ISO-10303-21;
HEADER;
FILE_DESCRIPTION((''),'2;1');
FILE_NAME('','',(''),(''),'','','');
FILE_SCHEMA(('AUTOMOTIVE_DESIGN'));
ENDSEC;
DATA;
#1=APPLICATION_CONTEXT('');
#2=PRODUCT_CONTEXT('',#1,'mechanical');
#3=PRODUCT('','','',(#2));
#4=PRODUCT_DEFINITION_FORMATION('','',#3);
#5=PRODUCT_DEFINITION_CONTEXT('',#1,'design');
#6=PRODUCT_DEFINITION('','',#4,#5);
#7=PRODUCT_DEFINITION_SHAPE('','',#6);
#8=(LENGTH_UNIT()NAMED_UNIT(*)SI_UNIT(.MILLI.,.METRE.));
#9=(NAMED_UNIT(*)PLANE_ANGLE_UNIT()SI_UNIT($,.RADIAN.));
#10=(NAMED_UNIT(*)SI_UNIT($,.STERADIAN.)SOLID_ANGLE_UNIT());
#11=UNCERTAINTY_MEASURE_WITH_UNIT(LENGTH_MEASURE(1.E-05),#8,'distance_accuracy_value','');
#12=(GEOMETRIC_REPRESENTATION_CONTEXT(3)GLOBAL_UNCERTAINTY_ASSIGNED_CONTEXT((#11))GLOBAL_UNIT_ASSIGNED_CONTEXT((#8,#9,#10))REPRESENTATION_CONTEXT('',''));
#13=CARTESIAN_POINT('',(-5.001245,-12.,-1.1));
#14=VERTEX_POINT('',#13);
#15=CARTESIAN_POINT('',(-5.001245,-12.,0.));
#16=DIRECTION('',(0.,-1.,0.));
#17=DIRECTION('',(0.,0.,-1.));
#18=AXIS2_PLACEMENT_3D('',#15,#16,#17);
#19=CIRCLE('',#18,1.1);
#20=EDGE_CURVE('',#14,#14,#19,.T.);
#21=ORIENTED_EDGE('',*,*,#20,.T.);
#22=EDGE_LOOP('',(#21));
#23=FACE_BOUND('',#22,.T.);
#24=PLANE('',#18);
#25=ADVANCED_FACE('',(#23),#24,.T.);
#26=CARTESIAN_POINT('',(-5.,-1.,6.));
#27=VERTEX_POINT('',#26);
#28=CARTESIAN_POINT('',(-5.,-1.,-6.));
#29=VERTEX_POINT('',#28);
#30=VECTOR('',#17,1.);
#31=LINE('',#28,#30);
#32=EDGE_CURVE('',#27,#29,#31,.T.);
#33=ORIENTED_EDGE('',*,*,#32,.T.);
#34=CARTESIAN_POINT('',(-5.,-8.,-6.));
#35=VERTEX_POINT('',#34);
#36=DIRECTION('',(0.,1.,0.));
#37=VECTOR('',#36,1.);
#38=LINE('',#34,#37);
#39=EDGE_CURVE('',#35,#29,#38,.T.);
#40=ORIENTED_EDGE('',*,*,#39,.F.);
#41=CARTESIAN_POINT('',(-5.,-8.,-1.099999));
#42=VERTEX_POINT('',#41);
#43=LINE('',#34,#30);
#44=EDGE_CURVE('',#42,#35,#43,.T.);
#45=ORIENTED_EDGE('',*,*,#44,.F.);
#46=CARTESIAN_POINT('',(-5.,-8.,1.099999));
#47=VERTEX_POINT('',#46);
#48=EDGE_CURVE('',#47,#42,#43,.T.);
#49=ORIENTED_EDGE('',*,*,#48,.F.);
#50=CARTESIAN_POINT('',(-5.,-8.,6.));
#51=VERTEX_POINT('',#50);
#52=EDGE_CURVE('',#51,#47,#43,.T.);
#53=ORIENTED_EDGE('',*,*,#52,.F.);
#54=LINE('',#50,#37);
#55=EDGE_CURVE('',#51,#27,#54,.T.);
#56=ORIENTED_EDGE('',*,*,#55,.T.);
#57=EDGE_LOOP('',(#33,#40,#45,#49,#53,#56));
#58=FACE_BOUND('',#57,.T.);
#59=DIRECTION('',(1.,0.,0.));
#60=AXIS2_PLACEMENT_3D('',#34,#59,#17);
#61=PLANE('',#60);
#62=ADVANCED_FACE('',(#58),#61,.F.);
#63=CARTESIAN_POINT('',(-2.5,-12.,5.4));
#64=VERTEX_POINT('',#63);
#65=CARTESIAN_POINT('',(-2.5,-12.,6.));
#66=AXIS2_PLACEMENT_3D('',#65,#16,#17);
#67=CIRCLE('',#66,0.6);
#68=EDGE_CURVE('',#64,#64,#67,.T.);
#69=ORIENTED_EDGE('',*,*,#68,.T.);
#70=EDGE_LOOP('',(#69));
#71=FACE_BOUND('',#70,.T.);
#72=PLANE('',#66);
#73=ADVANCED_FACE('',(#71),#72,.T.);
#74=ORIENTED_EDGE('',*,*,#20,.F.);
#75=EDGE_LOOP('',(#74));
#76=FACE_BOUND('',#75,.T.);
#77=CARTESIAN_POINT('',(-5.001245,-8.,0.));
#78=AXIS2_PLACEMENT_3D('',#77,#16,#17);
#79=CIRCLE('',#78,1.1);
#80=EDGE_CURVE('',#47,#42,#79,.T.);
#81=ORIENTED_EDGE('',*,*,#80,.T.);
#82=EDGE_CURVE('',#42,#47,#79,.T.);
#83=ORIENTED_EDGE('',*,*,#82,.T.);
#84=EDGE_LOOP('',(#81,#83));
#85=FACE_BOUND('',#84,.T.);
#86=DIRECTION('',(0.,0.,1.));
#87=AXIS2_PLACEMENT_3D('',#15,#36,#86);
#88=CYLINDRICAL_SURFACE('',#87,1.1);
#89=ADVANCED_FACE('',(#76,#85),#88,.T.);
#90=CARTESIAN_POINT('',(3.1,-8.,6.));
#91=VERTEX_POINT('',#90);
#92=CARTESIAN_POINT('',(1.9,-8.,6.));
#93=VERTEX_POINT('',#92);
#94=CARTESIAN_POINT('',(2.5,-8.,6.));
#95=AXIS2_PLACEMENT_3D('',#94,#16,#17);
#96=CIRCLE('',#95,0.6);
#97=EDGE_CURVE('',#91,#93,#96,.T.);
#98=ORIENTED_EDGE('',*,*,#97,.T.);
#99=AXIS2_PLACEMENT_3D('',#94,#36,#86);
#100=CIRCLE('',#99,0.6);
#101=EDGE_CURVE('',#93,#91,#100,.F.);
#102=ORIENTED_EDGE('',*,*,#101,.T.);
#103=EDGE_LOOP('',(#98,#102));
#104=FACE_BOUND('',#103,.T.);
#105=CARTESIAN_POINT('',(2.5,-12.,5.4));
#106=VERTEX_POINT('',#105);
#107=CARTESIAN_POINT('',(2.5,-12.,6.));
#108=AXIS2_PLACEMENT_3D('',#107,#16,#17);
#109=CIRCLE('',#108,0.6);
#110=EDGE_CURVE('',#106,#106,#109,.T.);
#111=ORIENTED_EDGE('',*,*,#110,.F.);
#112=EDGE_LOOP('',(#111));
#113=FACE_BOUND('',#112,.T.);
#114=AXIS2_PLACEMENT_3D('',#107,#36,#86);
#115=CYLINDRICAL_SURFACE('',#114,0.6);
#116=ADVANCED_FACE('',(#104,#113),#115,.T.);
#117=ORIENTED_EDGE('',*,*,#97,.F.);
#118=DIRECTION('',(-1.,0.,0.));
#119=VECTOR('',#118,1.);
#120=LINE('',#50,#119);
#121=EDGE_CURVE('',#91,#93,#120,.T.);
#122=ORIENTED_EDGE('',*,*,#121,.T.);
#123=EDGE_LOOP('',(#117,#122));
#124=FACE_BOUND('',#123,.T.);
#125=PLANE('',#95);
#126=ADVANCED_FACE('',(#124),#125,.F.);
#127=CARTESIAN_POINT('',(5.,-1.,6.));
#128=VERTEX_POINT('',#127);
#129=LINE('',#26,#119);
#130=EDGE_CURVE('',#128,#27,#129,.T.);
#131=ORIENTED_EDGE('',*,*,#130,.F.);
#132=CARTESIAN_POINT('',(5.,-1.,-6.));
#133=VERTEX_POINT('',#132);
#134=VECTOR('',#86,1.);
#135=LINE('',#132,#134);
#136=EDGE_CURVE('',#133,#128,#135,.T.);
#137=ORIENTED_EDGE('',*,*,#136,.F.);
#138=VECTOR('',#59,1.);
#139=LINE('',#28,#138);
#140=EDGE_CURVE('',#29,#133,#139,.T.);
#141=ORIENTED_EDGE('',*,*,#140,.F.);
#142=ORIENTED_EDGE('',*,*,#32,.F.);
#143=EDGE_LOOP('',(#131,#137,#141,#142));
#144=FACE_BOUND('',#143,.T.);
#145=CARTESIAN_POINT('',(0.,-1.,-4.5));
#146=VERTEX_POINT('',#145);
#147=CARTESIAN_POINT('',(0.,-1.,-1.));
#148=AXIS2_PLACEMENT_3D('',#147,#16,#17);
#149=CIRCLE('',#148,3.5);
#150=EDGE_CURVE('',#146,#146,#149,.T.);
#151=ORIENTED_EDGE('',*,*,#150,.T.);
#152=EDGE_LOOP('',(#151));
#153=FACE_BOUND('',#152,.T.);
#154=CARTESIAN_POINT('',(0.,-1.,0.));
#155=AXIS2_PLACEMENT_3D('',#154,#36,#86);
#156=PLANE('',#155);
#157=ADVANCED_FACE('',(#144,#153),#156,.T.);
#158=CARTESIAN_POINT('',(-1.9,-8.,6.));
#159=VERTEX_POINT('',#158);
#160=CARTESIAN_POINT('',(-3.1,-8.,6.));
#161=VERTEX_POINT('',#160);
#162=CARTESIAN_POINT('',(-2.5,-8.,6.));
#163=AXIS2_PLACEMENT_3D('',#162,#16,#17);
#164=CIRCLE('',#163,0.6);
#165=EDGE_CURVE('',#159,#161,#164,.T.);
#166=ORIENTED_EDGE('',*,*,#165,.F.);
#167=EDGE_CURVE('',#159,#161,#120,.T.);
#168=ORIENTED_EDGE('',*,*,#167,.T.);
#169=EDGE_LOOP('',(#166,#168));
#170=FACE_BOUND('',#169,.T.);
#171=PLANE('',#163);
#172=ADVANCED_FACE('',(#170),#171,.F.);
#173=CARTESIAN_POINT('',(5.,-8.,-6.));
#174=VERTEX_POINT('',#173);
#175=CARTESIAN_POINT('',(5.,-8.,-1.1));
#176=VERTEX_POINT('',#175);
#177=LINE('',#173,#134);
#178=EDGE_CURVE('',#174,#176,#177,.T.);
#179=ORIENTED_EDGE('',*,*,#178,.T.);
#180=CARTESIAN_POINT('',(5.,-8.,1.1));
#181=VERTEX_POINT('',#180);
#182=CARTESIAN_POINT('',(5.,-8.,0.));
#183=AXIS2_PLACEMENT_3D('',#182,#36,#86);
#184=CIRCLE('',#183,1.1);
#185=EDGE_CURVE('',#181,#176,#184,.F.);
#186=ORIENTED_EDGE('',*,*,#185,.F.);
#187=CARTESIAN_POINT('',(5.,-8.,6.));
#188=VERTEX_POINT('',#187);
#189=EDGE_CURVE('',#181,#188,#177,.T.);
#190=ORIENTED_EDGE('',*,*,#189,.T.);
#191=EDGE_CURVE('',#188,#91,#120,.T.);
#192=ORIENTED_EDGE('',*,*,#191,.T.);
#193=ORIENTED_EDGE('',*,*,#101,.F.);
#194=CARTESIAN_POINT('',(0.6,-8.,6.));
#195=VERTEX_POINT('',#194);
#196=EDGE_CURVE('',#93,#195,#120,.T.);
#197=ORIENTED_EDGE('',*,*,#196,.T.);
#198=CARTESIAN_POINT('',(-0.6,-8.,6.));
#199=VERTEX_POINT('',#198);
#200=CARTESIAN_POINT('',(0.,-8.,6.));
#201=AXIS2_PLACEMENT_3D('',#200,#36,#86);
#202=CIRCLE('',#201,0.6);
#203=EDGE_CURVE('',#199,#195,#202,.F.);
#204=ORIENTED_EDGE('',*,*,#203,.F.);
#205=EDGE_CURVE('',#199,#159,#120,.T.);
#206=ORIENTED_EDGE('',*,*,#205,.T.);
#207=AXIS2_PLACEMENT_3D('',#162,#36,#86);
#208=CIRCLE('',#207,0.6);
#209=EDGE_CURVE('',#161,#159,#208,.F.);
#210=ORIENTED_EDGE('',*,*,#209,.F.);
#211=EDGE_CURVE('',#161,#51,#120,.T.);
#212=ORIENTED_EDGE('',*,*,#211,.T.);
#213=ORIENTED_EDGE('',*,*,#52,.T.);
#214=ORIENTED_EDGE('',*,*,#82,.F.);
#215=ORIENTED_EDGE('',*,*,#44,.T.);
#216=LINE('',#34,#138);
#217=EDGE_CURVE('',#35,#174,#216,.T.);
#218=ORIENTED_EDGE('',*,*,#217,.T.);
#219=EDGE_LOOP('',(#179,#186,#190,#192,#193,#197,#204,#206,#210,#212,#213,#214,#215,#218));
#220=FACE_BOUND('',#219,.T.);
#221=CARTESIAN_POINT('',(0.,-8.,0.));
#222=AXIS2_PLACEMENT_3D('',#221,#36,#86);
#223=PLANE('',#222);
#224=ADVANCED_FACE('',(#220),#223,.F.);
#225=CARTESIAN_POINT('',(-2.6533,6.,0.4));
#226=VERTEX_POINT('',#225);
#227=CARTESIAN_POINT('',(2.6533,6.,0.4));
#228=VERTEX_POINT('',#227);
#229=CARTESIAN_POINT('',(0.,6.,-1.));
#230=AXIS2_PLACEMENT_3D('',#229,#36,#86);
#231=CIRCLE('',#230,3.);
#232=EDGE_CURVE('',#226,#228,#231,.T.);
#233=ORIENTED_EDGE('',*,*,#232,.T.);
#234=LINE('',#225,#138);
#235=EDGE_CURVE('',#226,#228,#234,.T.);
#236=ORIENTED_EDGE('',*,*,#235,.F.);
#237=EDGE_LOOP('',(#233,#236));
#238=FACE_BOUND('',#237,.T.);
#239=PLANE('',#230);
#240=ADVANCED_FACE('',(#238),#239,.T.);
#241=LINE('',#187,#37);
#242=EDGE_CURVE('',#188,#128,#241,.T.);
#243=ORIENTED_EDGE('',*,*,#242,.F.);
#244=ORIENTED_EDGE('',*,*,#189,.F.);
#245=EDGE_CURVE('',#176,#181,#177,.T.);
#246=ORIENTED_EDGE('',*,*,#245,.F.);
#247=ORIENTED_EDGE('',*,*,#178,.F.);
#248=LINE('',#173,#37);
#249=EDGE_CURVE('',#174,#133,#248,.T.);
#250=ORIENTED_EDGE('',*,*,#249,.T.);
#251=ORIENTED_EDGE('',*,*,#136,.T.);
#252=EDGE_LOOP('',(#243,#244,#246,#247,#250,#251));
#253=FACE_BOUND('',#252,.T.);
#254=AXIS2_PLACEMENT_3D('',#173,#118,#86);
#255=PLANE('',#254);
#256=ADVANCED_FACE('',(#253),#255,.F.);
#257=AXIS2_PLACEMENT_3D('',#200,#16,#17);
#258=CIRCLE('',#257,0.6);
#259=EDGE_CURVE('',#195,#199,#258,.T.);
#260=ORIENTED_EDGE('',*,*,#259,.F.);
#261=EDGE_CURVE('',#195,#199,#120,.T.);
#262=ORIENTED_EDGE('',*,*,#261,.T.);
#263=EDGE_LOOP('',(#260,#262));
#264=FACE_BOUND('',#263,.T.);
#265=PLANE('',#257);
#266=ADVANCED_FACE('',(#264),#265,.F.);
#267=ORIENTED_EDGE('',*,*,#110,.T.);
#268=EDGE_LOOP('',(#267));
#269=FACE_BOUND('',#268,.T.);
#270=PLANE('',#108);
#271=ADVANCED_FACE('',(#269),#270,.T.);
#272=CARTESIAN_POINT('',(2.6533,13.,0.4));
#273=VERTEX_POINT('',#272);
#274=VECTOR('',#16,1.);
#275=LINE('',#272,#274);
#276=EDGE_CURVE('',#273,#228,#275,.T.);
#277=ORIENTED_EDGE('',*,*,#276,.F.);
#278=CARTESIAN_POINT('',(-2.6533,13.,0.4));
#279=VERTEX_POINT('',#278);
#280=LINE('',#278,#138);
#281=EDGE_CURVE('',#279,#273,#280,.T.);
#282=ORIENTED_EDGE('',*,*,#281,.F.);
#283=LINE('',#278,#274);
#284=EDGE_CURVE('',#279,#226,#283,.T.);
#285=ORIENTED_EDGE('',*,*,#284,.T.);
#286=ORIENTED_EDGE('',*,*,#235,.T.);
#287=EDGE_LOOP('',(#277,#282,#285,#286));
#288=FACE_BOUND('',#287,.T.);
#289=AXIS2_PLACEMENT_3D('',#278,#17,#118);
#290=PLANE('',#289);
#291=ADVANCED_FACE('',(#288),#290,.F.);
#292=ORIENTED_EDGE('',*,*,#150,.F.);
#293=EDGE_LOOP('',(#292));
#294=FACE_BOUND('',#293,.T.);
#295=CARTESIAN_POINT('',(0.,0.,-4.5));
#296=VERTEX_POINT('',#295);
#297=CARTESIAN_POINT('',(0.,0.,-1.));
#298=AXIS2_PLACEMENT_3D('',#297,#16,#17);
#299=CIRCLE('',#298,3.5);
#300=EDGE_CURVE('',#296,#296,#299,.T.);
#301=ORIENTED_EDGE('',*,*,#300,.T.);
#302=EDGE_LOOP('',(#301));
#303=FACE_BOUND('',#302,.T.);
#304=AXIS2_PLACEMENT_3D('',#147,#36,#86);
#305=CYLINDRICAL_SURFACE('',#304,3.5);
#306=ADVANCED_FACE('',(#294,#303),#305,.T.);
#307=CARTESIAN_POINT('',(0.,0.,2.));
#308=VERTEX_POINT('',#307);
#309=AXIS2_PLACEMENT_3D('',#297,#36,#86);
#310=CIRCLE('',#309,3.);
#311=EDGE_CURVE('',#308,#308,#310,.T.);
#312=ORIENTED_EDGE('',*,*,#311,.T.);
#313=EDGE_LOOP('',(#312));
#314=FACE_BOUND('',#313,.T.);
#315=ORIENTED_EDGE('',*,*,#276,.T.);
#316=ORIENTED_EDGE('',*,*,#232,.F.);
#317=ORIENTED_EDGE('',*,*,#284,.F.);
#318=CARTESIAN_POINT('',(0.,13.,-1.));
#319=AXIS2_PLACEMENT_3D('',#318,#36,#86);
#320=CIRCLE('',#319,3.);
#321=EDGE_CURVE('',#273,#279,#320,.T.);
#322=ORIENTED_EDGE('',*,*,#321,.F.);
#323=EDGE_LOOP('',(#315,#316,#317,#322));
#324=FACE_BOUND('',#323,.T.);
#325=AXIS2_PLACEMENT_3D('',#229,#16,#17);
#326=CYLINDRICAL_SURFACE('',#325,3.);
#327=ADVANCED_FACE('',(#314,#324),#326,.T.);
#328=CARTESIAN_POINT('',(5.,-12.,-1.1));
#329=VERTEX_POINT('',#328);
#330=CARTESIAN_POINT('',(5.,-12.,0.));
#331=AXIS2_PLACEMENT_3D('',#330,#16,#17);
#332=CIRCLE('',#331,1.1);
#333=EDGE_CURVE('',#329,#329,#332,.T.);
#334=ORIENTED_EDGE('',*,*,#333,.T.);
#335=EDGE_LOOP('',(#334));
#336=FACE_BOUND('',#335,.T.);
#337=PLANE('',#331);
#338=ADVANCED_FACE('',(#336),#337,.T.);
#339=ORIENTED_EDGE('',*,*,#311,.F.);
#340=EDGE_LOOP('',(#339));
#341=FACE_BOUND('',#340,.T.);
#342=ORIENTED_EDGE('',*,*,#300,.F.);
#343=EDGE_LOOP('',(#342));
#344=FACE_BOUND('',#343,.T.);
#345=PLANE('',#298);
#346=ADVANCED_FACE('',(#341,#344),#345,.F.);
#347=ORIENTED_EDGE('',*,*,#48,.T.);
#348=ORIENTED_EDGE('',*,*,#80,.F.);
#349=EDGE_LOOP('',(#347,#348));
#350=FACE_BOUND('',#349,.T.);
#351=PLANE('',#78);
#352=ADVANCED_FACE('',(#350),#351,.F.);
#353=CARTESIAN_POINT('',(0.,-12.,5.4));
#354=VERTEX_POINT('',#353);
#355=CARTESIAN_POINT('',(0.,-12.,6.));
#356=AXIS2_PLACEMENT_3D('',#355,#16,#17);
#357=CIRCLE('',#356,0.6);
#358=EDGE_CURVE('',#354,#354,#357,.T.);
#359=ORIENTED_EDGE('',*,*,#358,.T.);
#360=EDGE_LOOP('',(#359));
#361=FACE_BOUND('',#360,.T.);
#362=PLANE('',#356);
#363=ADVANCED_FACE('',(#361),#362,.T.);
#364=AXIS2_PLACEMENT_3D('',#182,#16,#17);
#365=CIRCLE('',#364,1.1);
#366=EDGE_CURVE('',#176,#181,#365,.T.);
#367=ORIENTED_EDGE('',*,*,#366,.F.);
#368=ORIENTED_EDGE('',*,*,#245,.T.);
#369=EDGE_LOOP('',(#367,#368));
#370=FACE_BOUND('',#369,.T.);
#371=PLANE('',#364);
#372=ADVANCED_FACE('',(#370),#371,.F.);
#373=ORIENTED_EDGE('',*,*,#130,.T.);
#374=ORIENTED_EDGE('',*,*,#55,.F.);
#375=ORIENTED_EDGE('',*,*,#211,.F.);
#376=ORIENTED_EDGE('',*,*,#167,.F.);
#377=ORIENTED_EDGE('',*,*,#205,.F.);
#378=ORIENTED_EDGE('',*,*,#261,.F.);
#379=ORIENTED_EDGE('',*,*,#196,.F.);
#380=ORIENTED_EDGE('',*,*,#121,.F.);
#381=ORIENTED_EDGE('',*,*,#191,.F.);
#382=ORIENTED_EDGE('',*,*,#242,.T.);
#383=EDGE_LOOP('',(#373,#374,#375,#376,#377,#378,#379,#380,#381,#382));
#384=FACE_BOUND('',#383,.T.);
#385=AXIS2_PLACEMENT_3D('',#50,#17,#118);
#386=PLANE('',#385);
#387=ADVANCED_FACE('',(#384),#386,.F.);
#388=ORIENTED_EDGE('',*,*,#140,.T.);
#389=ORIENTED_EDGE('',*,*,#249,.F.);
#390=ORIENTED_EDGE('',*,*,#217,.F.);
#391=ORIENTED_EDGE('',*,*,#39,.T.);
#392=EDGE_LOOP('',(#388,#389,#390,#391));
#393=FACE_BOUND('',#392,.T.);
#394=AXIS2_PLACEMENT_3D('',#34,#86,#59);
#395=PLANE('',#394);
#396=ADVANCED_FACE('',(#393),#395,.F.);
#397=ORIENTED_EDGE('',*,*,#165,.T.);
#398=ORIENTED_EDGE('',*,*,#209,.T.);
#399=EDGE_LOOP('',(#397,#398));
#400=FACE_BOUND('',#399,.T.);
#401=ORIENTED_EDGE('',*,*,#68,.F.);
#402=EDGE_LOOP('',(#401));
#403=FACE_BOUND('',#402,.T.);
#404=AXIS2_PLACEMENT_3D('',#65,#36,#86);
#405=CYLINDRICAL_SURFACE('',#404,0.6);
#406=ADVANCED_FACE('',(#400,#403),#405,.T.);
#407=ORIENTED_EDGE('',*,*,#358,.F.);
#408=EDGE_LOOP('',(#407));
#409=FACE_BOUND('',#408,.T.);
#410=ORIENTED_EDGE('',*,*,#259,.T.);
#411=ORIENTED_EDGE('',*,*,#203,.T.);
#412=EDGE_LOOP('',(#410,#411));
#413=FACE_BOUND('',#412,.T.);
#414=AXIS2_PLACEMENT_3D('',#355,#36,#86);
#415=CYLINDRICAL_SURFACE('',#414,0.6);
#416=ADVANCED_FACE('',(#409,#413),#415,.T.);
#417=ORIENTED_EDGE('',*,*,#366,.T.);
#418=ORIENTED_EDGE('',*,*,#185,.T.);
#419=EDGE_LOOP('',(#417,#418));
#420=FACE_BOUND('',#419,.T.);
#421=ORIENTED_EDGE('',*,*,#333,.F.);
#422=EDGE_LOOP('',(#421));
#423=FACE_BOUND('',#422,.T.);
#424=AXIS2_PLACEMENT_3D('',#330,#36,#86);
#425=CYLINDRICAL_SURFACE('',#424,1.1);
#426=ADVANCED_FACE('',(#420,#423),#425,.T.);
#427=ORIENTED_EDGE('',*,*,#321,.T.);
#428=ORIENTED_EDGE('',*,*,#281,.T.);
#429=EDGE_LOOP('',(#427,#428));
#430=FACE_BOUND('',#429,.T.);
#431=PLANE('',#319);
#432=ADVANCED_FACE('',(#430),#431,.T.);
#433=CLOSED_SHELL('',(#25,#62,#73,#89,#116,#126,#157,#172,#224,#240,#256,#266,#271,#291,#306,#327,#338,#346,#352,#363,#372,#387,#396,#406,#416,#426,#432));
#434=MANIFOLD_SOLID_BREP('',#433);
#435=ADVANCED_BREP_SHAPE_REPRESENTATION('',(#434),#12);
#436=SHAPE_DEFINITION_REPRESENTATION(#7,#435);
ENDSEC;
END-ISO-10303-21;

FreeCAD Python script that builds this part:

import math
import FreeCAD as App
import Part
import Sketcher

doc = App.newDocument("Part")
body = doc.addObject("PartDesign::Body", "Body")

sketch1 = body.newObject("Sketcher::SketchObject", "Sketch")
sketch1.AttachmentSupport = (doc.getObject("XZ_Plane"), [""])
sketch1.MapMode = "FlatFace"
sketch1.addGeometry(Part.Circle(App.Vector(0, -1, 0), App.Vector(0, 0, 1), 3), False)
sketch1.addConstraint(Sketcher.Constraint("PointOnObject", 0, 3, -2))
sketch1.addConstraint(Sketcher.Constraint("Diameter", 0, 6.0))
sketch1.addConstraint(Sketcher.Constraint("DistanceY", 0, 3, -1, 1, 1.0))
pad1 = body.newObject("PartDesign::Pad", "Pad")
pad1.Profile = sketch1
pad1.Length = 6
pad1.Reversed = True

sketch2 = body.newObject("Sketcher::SketchObject", "Sketch001")
sketch2.AttachmentSupport = (doc.getObject("XZ_Plane"), [""])
sketch2.MapMode = "FlatFace"
sketch2.AttachmentOffset = App.Placement(App.Vector(0, 0, -6), App.Rotation())
sketch2.addGeometry(Part.LineSegment(App.Vector(-2.7, 0.4, 0), App.Vector(2.7, 0.4, 0)), False)
sketch2.addGeometry(Part.ArcOfCircle(Part.Circle(App.Vector(0, -1, 0), App.Vector(0, 0, 1), 3), math.radians(152), math.radians(388)), False)
sketch2.addConstraint(Sketcher.Constraint("Coincident", 0, 1, 1, 1))
sketch2.addConstraint(Sketcher.Constraint("Coincident", 1, 2, 0, 2))
sketch2.addConstraint(Sketcher.Constraint("Horizontal", 0))
sketch2.addConstraint(Sketcher.Constraint("PointOnObject", 1, 3, -2))
sketch2.addConstraint(Sketcher.Constraint("Radius", 1, 3.0))
sketch2.addConstraint(Sketcher.Constraint("DistanceY", 1, 3, -1, 1, 1.0))
sketch2.addConstraint(Sketcher.Constraint("DistanceY", -1, 1, 0, 1, 0.4))
pad2 = body.newObject("PartDesign::Pad", "Pad001")
pad2.Profile = sketch2
pad2.Length = 7
pad2.Reversed = True

sketch3 = body.newObject("Sketcher::SketchObject", "Sketch002")
sketch3.AttachmentSupport = (doc.getObject("XZ_Plane"), [""])
sketch3.MapMode = "FlatFace"
sketch3.addGeometry(Part.Circle(App.Vector(0, -1, 0), App.Vector(0, 0, 1), 3.5), False)
sketch3.addConstraint(Sketcher.Constraint("PointOnObject", 0, 3, -2))
sketch3.addConstraint(Sketcher.Constraint("Diameter", 0, 7.0))
sketch3.addConstraint(Sketcher.Constraint("DistanceY", 0, 3, -1, 1, 1.0))
pad3 = body.newObject("PartDesign::Pad", "Pad002")
pad3.Profile = sketch3
pad3.Length = 1

sketch4 = body.newObject("Sketcher::SketchObject", "Sketch003")
sketch4.AttachmentSupport = (doc.getObject("XZ_Plane"), [""])
sketch4.MapMode = "FlatFace"
sketch4.AttachmentOffset = App.Placement(App.Vector(0, 0, 1), App.Rotation())
sketch4.addGeometry(Part.LineSegment(App.Vector(-5, 6, 0), App.Vector(-5, -6, 0)), False)
sketch4.addGeometry(Part.LineSegment(App.Vector(-5, -6, 0), App.Vector(5, -6, 0)), False)
sketch4.addGeometry(Part.LineSegment(App.Vector(5, -6, 0), App.Vector(5, 6, 0)), False)
sketch4.addGeometry(Part.LineSegment(App.Vector(5, 6, 0), App.Vector(-5, 6, 0)), False)
sketch4.addConstraint(Sketcher.Constraint("Coincident", 0, 2, 1, 1))
sketch4.addConstraint(Sketcher.Constraint("Coincident", 1, 2, 2, 1))
sketch4.addConstraint(Sketcher.Constraint("Coincident", 2, 2, 3, 1))
sketch4.addConstraint(Sketcher.Constraint("Coincident", 3, 2, 0, 1))
sketch4.addConstraint(Sketcher.Constraint("Vertical", 0))
sketch4.addConstraint(Sketcher.Constraint("Horizontal", 1))
sketch4.addConstraint(Sketcher.Constraint("Vertical", 2))
sketch4.addConstraint(Sketcher.Constraint("Horizontal", 3))
sketch4.addConstraint(Sketcher.Constraint("Symmetric", 0, 2, 2, 2, -1, 1))
sketch4.addConstraint(Sketcher.Constraint("DistanceX", 1, 1, 1, 2, 10.0))
sketch4.addConstraint(Sketcher.Constraint("DistanceY", 0, 2, 0, 1, 12.0))
pad4 = body.newObject("PartDesign::Pad", "Pad003")
pad4.Profile = sketch4
pad4.Length = 7

sketch5 = body.newObject("Sketcher::SketchObject", "Sketch004")
sketch5.AttachmentSupport = (doc.getObject("XZ_Plane"), [""])
sketch5.MapMode = "FlatFace"
sketch5.AttachmentOffset = App.Placement(App.Vector(0, 0, 8), App.Rotation())
sketch5.addGeometry(Part.Circle(App.Vector(-5, 0, 0), App.Vector(0, 0, 1), 1.1), False)
sketch5.addGeometry(Part.Circle(App.Vector(5, 0, 0), App.Vector(0, 0, 1), 1.1), False)
sketch5.addConstraint(Sketcher.Constraint("Equal", 0, 1))
sketch5.addConstraint(Sketcher.Constraint("PointOnObject", 0, 3, -1))
sketch5.addConstraint(Sketcher.Constraint("PointOnObject", 1, 3, -1))
sketch5.addConstraint(Sketcher.Constraint("Diameter", 0, 2.2))
sketch5.addConstraint(Sketcher.Constraint("DistanceX", -1, 1, 1, 3, 5.0))
sketch5.addConstraint(Sketcher.Constraint("DistanceX", 0, 3, -1, 1, 5.001245))
pad5 = body.newObject("PartDesign::Pad", "Pad004")
pad5.Profile = sketch5
pad5.Length = 4

sketch6 = body.newObject("Sketcher::SketchObject", "Sketch005")
sketch6.AttachmentSupport = (doc.getObject("XZ_Plane"), [""])
sketch6.MapMode = "FlatFace"
sketch6.AttachmentOffset = App.Placement(App.Vector(0, 0, 8), App.Rotation())
sketch6.addGeometry(Part.Circle(App.Vector(0, 6, 0), App.Vector(0, 0, 1), 0.6), False)
sketch6.addGeometry(Part.Circle(App.Vector(2.5, 6, 0), App.Vector(0, 0, 1), 0.6), False)
sketch6.addGeometry(Part.Circle(App.Vector(-2.5, 6, 0), App.Vector(0, 0, 1), 0.6), False)
sketch6.addConstraint(Sketcher.Constraint("Equal", 0, 1))
sketch6.addConstraint(Sketcher.Constraint("Equal", 1, 2))
sketch6.addConstraint(Sketcher.Constraint("Symmetric", 1, 3, 2, 3, -2))
sketch6.addConstraint(Sketcher.Constraint("PointOnObject", 0, 3, -2))
sketch6.addConstraint(Sketcher.Constraint("Horizontal", 0, 3, 1, 3))
sketch6.addConstraint(Sketcher.Constraint("Diameter", 0, 1.2))
sketch6.addConstraint(Sketcher.Constraint("DistanceY", -1, 1, 0, 3, 6.0))
sketch6.addConstraint(Sketcher.Constraint("DistanceX", 2, 3, 1, 3, 5.0))
pad6 = body.newObject("PartDesign::Pad", "Pad005")
pad6.Profile = sketch6
pad6.Length = 4

doc.recompute()
